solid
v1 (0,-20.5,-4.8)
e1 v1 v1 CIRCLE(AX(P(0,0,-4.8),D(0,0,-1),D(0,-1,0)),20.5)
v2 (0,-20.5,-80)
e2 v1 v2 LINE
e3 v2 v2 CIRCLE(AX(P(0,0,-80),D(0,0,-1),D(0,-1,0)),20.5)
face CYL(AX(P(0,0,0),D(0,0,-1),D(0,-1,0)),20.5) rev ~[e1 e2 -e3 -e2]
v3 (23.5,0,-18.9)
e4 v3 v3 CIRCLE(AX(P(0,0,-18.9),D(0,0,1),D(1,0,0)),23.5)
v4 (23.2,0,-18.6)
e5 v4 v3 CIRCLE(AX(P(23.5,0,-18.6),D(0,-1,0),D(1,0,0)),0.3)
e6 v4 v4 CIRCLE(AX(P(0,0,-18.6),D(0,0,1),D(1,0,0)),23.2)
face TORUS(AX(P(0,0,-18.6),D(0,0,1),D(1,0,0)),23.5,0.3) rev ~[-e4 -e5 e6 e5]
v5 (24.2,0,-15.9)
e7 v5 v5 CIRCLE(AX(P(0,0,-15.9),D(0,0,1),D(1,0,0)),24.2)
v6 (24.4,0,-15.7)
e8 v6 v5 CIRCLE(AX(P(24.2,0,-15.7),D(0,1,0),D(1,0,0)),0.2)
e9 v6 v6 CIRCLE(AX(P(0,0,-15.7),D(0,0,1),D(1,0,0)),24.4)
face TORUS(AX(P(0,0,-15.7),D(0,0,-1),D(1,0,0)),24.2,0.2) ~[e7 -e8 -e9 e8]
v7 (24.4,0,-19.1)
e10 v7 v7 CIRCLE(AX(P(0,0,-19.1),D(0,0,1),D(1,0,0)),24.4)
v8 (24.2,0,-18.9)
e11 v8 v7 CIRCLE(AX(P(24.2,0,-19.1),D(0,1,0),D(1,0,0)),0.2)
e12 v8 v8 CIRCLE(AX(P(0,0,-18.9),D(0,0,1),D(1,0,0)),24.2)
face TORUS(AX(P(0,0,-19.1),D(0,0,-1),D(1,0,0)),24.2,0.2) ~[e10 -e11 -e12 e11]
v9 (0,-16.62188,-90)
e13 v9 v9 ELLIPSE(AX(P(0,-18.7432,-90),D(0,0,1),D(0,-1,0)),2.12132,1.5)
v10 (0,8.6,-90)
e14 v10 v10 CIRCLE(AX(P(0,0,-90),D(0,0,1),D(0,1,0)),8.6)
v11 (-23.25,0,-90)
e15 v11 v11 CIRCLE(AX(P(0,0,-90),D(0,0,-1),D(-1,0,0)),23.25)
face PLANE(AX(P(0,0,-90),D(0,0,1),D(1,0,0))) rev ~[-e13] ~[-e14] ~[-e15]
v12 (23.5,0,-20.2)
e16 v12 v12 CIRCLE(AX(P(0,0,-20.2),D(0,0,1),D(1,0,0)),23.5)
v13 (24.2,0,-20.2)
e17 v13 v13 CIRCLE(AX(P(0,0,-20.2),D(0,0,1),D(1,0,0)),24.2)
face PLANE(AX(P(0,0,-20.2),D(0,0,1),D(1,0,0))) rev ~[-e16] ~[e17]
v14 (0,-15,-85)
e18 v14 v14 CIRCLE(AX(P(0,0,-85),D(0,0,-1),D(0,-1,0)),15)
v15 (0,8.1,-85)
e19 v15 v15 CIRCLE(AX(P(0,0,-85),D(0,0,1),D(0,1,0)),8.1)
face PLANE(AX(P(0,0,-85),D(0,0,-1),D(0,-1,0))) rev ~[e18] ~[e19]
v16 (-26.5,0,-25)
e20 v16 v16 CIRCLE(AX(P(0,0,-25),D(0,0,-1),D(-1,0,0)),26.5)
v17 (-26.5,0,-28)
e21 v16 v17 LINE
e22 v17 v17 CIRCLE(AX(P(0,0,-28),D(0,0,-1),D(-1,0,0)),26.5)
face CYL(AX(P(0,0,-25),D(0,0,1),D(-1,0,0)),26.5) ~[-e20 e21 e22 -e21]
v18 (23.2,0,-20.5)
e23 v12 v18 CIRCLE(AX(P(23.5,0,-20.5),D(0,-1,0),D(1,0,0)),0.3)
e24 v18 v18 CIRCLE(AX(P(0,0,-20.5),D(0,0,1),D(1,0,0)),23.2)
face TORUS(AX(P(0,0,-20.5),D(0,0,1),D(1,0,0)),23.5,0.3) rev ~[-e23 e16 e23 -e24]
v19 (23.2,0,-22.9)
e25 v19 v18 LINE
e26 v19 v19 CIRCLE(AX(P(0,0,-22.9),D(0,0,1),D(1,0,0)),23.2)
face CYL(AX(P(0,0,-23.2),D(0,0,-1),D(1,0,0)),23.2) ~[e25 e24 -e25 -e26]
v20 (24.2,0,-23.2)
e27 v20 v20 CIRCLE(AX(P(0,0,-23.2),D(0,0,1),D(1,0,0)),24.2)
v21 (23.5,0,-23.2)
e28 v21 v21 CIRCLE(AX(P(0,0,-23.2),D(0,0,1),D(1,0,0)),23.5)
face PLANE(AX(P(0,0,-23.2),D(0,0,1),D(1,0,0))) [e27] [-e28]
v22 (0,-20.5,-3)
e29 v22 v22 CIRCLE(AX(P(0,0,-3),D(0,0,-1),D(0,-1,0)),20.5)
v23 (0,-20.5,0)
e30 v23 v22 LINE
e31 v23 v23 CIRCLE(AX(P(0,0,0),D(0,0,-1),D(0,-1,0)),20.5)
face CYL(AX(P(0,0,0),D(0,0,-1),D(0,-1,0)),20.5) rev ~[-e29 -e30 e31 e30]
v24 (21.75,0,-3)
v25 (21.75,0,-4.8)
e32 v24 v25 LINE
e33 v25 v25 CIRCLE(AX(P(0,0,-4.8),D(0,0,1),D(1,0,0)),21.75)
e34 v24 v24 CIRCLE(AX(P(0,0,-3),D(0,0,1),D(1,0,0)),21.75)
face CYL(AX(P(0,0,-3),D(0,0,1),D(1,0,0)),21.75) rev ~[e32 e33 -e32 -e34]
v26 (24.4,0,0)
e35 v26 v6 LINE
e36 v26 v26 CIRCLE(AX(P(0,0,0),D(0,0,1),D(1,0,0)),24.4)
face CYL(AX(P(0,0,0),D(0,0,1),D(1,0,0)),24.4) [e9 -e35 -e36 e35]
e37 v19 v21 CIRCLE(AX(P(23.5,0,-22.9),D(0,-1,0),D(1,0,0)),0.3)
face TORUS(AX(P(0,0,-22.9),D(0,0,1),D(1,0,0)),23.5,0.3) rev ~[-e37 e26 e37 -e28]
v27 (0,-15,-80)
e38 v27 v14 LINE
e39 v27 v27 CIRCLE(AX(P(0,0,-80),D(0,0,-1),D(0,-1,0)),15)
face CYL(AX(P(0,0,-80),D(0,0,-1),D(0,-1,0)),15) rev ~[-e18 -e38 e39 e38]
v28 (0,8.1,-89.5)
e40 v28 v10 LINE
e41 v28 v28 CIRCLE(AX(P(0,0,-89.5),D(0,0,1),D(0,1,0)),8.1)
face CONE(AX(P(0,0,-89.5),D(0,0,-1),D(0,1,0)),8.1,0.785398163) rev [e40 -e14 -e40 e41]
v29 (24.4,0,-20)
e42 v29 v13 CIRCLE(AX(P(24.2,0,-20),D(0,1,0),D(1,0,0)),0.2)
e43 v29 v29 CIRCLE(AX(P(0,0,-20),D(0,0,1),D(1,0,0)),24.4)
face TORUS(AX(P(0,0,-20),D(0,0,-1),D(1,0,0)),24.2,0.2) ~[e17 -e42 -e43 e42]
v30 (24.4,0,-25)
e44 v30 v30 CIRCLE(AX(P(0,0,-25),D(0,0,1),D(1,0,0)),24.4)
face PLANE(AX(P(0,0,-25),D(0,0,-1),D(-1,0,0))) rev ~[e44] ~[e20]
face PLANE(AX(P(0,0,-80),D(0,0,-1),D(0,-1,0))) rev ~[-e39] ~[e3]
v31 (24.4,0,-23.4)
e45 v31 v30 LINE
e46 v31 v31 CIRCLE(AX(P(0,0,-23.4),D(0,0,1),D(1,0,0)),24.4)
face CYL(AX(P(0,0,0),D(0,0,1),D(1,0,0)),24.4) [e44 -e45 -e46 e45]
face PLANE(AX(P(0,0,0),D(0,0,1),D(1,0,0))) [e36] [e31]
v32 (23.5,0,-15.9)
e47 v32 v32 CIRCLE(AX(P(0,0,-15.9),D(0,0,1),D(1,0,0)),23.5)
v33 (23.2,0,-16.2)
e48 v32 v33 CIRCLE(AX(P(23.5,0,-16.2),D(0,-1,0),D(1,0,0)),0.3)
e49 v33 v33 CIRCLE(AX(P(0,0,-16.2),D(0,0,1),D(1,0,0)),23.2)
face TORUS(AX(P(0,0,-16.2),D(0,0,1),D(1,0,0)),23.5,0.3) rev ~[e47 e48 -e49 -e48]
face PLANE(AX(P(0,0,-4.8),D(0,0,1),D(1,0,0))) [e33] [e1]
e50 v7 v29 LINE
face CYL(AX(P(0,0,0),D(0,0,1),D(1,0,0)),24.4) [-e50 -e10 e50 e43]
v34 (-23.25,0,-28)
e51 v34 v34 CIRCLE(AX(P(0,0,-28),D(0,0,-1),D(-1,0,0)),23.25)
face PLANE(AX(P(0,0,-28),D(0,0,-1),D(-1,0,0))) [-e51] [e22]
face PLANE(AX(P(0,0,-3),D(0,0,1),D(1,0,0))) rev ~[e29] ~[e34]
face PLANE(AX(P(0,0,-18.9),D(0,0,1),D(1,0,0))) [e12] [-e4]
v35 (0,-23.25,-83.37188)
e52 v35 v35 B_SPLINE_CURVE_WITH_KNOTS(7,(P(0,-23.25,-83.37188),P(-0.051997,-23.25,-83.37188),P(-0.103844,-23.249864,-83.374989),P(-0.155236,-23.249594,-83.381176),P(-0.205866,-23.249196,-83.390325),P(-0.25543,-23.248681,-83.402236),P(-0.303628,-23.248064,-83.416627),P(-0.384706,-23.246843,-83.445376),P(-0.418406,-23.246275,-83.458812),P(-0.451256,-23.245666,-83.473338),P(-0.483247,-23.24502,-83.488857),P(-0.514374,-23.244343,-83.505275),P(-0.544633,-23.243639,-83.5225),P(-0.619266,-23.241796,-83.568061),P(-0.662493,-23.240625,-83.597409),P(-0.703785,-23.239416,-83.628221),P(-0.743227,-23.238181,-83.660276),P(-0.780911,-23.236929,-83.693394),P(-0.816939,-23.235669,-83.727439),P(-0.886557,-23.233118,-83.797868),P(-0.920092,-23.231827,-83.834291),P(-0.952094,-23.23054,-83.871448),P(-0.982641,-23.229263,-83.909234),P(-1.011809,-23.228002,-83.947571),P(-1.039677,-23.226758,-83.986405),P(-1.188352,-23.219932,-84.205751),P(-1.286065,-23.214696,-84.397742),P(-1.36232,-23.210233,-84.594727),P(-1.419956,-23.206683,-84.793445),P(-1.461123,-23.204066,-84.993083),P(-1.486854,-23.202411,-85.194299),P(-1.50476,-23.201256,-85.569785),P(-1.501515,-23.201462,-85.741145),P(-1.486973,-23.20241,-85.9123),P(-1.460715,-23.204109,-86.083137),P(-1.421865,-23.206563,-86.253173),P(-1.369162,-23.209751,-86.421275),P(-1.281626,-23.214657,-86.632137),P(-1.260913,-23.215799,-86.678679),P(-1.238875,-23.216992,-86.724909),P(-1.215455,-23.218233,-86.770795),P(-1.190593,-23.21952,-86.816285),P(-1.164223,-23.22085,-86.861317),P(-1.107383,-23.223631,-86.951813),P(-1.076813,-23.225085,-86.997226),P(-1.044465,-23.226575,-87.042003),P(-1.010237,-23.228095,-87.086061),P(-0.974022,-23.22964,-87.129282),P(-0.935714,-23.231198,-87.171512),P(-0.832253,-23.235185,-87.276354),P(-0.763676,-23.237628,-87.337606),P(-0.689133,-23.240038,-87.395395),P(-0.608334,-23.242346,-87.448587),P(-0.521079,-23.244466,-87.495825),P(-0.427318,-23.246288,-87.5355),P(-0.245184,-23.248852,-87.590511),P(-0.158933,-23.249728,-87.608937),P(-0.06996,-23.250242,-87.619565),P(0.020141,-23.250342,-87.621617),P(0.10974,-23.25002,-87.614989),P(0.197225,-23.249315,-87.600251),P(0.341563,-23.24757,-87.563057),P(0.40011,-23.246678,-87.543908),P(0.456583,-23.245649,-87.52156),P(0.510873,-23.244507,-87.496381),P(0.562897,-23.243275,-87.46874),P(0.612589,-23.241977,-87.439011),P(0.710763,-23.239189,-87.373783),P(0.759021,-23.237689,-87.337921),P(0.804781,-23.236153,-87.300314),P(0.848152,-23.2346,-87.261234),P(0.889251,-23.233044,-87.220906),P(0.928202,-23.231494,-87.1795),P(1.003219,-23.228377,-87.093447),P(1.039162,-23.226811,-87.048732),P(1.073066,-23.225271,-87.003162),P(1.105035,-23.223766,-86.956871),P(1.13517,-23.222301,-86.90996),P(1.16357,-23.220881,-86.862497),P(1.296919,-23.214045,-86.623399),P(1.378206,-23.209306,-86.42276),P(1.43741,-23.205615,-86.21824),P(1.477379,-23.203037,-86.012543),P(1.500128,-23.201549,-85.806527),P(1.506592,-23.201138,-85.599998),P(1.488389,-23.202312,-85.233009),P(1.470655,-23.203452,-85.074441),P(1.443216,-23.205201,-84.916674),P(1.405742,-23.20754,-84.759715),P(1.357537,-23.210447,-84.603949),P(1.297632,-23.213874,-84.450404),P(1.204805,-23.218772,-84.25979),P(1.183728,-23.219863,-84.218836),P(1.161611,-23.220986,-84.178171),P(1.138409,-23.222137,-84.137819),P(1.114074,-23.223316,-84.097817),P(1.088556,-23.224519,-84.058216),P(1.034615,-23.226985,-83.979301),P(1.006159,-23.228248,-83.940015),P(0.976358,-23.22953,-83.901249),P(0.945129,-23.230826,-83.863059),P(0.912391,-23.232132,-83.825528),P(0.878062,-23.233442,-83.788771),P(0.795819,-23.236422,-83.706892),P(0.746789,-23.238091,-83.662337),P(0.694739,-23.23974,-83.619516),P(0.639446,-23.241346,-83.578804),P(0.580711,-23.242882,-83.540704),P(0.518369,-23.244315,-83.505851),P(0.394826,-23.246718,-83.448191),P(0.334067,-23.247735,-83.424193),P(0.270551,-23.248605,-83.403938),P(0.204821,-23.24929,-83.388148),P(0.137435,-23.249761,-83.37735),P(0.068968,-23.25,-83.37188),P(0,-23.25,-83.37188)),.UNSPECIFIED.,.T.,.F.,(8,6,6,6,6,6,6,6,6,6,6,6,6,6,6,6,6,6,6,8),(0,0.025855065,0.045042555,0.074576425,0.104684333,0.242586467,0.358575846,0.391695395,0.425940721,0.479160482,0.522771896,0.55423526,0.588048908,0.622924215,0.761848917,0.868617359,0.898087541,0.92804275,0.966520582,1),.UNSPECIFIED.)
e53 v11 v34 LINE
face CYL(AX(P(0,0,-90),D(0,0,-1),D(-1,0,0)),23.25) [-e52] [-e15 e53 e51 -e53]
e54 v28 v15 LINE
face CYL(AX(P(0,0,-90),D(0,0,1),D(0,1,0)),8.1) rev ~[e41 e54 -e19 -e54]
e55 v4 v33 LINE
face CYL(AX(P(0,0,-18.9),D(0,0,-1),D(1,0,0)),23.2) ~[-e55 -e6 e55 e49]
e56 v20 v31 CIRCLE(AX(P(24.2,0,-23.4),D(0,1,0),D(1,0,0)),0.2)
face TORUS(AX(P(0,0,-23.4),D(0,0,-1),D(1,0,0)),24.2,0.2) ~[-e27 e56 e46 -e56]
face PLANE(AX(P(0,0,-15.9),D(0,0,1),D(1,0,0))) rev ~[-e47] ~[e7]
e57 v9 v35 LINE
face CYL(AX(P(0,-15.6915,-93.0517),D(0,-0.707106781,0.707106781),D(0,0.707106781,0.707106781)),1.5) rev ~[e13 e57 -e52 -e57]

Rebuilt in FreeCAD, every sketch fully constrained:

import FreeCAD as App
import Part
import Sketcher
from FreeCAD import Vector
Q = App.Units.Quantity


def edges_at(feature, points):
    """Names of the edges that pass closest to the given points."""
    edges = feature.Shape.Edges
    near = lambda p: min(range(len(edges)), key=lambda i: edges[i].distToShape(Part.Vertex(*p))[0])
    return sorted({f"Edge{near(p) + 1}" for p in points})

doc = App.newDocument("Part")
body = doc.addObject("PartDesign::Body", "Body")

# Sketch on XY plane
sketch1 = doc.addObject("Sketcher::SketchObject", "Sketch")
body.addObject(sketch1)
sketch1.AttachmentSupport = (doc.XY_Plane, [""])
sketch1.MapMode = "FlatFace"
sketch1.addGeometry(Part.Circle(Vector(0, 0, 0), Vector(0, 0, 1), 24), False)
sketch1.addConstraint([
    Sketcher.Constraint("Coincident", 0, 3, -1, 1),
    Sketcher.Constraint("Diameter", 0, Q("48.8 mm")),
])
pad1 = doc.addObject("PartDesign::Pad", "Pad")
body.addObject(pad1)
pad1.Profile = sketch1
pad1.Length = 90
pad1.Reversed = True

# Sketch on XY plane
sketch2 = doc.addObject("Sketcher::SketchObject", "Sketch001")
body.addObject(sketch2)
sketch2.AttachmentSupport = (doc.XY_Plane, [""])
sketch2.MapMode = "FlatFace"
sketch2.AttachmentOffset = App.Placement(Vector(0, 0, -25), App.Rotation())
sketch2.addGeometry(Part.Circle(Vector(0, 0, 0), Vector(0, 0, 1), 26), False)
sketch2.addConstraint([
    Sketcher.Constraint("Coincident", 0, 3, -1, 1),
    Sketcher.Constraint("Diameter", 0, Q("53 mm")),
])
pad2 = doc.addObject("PartDesign::Pad", "Pad001")
body.addObject(pad2)
pad2.Profile = sketch2
pad2.Length = 3
pad2.Reversed = True

# Sketch on XY plane
sketch3 = doc.addObject("Sketcher::SketchObject", "Sketch002")
body.addObject(sketch3)
sketch3.AttachmentSupport = (doc.XY_Plane, [""])
sketch3.MapMode = "FlatFace"
sketch3.AttachmentOffset = App.Placement(Vector(0, 0, -23.2), App.Rotation())
sketch3.addGeometry([
    Part.Circle(Vector(0, 0, 0), Vector(0, 0, 1), 24),
    Part.Circle(Vector(0, 0, 0), Vector(0, 0, 1), 23),
], False)
sketch3.addConstraint([
    Sketcher.Constraint("Coincident", 0, 3, -1, 1),
    Sketcher.Constraint("Coincident", 1, 3, -1, 1),
    Sketcher.Constraint("Diameter", 1, Q("46.4 mm")),
    Sketcher.Constraint("Diameter", 0, Q("48.8 mm")),
])
pocket1 = doc.addObject("PartDesign::Pocket", "Pocket")
body.addObject(pocket1)
pocket1.Profile = sketch3
pocket1.Length = 3
pocket1.Reversed = True

# Sketch on XY plane
sketch4 = doc.addObject("Sketcher::SketchObject", "Sketch003")
body.addObject(sketch4)
sketch4.AttachmentSupport = (doc.XY_Plane, [""])
sketch4.MapMode = "FlatFace"
sketch4.AttachmentOffset = App.Placement(Vector(0, 0, -18.9), App.Rotation())
sketch4.addGeometry([
    Part.Circle(Vector(0, 0, 0), Vector(0, 0, 1), 24),
    Part.Circle(Vector(0, 0, 0), Vector(0, 0, 1), 23),
], False)
sketch4.addConstraint([
    Sketcher.Constraint("Coincident", 0, 3, -1, 1),
    Sketcher.Constraint("Coincident", 1, 3, -1, 1),
    Sketcher.Constraint("Diameter", 1, Q("46.4 mm")),
    Sketcher.Constraint("Diameter", 0, Q("48.8 mm")),
])
pocket2 = doc.addObject("PartDesign::Pocket", "Pocket001")
body.addObject(pocket2)
pocket2.Profile = sketch4
pocket2.Length = 3
pocket2.Reversed = True
doc.recompute()

fillet = doc.addObject("PartDesign::Fillet", "Fillet")
body.addObject(fillet)
fillet.Base = (pocket2, edges_at(pocket2, [
    (-24.4, 0, -23.2),
    (-24.4, 0, -20.2),
    (-24.4, 0, -18.9),
    (-24.4, 0, -15.9),
]))
fillet.Radius = 0.2
doc.recompute()

fillet2 = doc.addObject("PartDesign::Fillet", "Fillet001")
body.addObject(fillet2)
fillet2.Base = (fillet, edges_at(fillet, [
    (-23.2, 0, -23.2),
    (-23.2, 0, -18.9),
    (-23.2, 0, -15.9),
    (-23.2, 0, -20.2),
]))
fillet2.Radius = 0.3

# Sketch on XY plane
sketch5 = doc.addObject("Sketcher::SketchObject", "Sketch004")
body.addObject(sketch5)
sketch5.AttachmentSupport = (doc.XY_Plane, [""])
sketch5.MapMode = "FlatFace"
sketch5.addGeometry(Part.Circle(Vector(0, 0, 0), Vector(0, 0, 1), 20), False)
sketch5.addConstraint([
    Sketcher.Constraint("Coincident", 0, 3, -1, 1),
    Sketcher.Constraint("Diameter", 0, Q("41 mm")),
])
doc.recompute()
hole = doc.addObject("PartDesign::Hole", "Hole")
body.addObject(hole)
hole.Profile = sketch5
hole.ThreadType = "None"
hole.Diameter = 41
hole.DepthType = "Dimension"
hole.Depth = 80
hole.DrillPoint = "Flat"

# Sketch on XY plane
sketch6 = doc.addObject("Sketcher::SketchObject", "Sketch005")
body.addObject(sketch6)
sketch6.AttachmentSupport = (doc.XY_Plane, [""])
sketch6.MapMode = "FlatFace"
sketch6.AttachmentOffset = App.Placement(Vector(0, 0, -90), App.Rotation())
sketch6.addGeometry(Part.Circle(Vector(0, 0, 0), Vector(0, 0, 1), 8), False)
sketch6.addConstraint([
    Sketcher.Constraint("Coincident", 0, 3, -1, 1),
    Sketcher.Constraint("Diameter", 0, Q("16.2 mm")),
])
doc.recompute()
hole2 = doc.addObject("PartDesign::Hole", "Hole001")
body.addObject(hole2)
hole2.Profile = sketch6
hole2.ThreadType = "None"
hole2.Diameter = 16.2
hole2.DepthType = "Dimension"
hole2.Depth = 10
hole2.DrillPoint = "Flat"
hole2.Reversed = True
doc.recompute()

chamfer = doc.addObject("PartDesign::Chamfer", "Chamfer")
body.addObject(chamfer)
chamfer.Base = (hole2, edges_at(hole2, [(0, -8.1, -90)]))
chamfer.Size = 0.5

# Sketch on XY plane
sketch7 = doc.addObject("Sketcher::SketchObject", "Sketch006")
body.addObject(sketch7)
sketch7.AttachmentSupport = (doc.XY_Plane, [""])
sketch7.MapMode = "FlatFace"
sketch7.AttachmentOffset = App.Placement(Vector(0, 0, -80), App.Rotation())
sketch7.addGeometry(Part.Circle(Vector(0, 0, 0), Vector(0, 0, 1), 15), False)
sketch7.addConstraint([
    Sketcher.Constraint("Coincident", 0, 3, -1, 1),
    Sketcher.Constraint("Diameter", 0, Q("30 mm")),
])
doc.recompute()
hole3 = doc.addObject("PartDesign::Hole", "Hole002")
body.addObject(hole3)
hole3.Profile = sketch7
hole3.ThreadType = "None"
hole3.Diameter = 30
hole3.DepthType = "Dimension"
hole3.Depth = 5
hole3.DrillPoint = "Flat"

# Sketch on an angled plane
sketch8 = doc.addObject("Sketcher::SketchObject", "Sketch007")
body.addObject(sketch8)
sketch8.Placement = App.Placement(Vector(0, 38.6801, -38.6801), App.Rotation(Vector(0, 0.707106781, 0.707106781), Vector(0.999999999, 0, 0), Vector(0, 0.707106781, -0.707106781), "ZXY"))
sketch8.addGeometry(Part.Circle(Vector(-76.9, 0, 0), Vector(0, 0, 1), 1.5), False)
sketch8.addConstraint([
    Sketcher.Constraint("PointOnObject", 0, 3, -1),
    Sketcher.Constraint("Diameter", 0, Q("3 mm")),
    Sketcher.Constraint("DistanceX", 0, 3, -1, 1, Q("76.893 mm")),
])
doc.recompute()
hole4 = doc.addObject("PartDesign::Hole", "Hole003")
body.addObject(hole4)
hole4.Profile = sketch8
hole4.ThreadType = "None"
hole4.Diameter = 3
hole4.DepthType = "ThroughAll"

# Sketch on XY plane
sketch9 = doc.addObject("Sketcher::SketchObject", "Sketch008")
body.addObject(sketch9)
sketch9.AttachmentSupport = (doc.XY_Plane, [""])
sketch9.MapMode = "FlatFace"
sketch9.AttachmentOffset = App.Placement(Vector(0, 0, -90), App.Rotation())
sketch9.addGeometry([
    Part.Circle(Vector(0, 0, 0), Vector(0, 0, 1), 24),
    Part.Circle(Vector(0, 0, 0), Vector(0, 0, 1), 23),
], False)
sketch9.addConstraint([
    Sketcher.Constraint("Coincident", 0, 3, -1, 1),
    Sketcher.Constraint("Coincident", 1, 3, -1, 1),
    Sketcher.Constraint("Diameter", 1, Q("46.5 mm")),
    Sketcher.Constraint("Diameter", 0, Q("48.8 mm")),
])
pocket3 = doc.addObject("PartDesign::Pocket", "Pocket002")
body.addObject(pocket3)
pocket3.Profile = sketch9
pocket3.Length = 62
pocket3.Reversed = True

# Sketch on XY plane
sketch10 = doc.addObject("Sketcher::SketchObject", "Sketch009")
body.addObject(sketch10)
sketch10.AttachmentSupport = (doc.XY_Plane, [""])
sketch10.MapMode = "FlatFace"
sketch10.AttachmentOffset = App.Placement(Vector(0, 0, -3), App.Rotation())
sketch10.addGeometry(Part.Circle(Vector(0, 0, 0), Vector(0, 0, 1), 22), False)
sketch10.addConstraint([
    Sketcher.Constraint("Coincident", 0, 3, -1, 1),
    Sketcher.Constraint("Diameter", 0, Q("43.5 mm")),
])
pocket4 = doc.addObject("PartDesign::Pocket", "Pocket003")
body.addObject(pocket4)
pocket4.Profile = sketch10
pocket4.Length = 1.8

doc.recompute()
